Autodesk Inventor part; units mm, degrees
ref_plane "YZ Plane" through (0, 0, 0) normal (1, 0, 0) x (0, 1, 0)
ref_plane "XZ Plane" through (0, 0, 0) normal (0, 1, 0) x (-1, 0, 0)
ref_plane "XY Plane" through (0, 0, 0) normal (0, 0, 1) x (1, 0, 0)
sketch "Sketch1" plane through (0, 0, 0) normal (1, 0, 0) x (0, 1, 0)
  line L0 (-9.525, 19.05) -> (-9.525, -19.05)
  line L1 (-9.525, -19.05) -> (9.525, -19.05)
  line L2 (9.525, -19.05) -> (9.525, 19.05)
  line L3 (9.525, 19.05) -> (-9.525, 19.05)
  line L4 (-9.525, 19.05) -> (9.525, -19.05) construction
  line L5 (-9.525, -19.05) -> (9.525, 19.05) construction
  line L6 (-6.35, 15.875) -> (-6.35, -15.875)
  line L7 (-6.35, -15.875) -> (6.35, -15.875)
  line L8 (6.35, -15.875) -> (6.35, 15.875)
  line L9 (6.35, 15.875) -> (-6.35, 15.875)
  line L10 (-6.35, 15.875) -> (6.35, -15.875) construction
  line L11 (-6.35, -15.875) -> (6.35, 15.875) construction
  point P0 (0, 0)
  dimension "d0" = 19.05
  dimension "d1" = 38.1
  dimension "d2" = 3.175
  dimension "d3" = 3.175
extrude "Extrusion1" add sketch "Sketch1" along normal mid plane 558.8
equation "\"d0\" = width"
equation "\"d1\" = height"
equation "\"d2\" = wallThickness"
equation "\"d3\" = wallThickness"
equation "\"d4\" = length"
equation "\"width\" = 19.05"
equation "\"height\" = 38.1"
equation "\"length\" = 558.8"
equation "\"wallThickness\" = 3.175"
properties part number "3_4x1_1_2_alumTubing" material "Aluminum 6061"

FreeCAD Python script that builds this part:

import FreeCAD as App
import Part
import Sketcher

V = App.Vector
Q = App.Units.Quantity


def add_polygon(sketch, points):
    """Adds a closed chain of lines whose ends are joined by coincident constraints."""
    first, n = sketch.GeometryCount, len(points)
    for a, b in zip(points, points[1:] + points[:1]):
        sketch.addGeometry(Part.LineSegment(App.Vector(*a, 0), App.Vector(*b, 0)), False)
    for i in range(n):
        sketch.addConstraint(Sketcher.Constraint("Coincident", first + i, 2, first + (i + 1) % n, 1))

doc = App.newDocument("Part")
body = doc.addObject("PartDesign::Body", "Body")

# Sketch on YZ plane
sketch1 = body.newObject("Sketcher::SketchObject", "Sketch")
sketch1.AttachmentSupport = (doc.getObject("YZ_Plane"), [""])
sketch1.MapMode = "FlatFace"
add_polygon(sketch1, [(10, 19), (-10, 19), (-10, -19), (10, -19)])  # lines 0-3
add_polygon(sketch1, [(-6, -16), (-6, 16), (6, 16), (6, -16)])  # lines 4-7
sketch1.addConstraint(Sketcher.Constraint("Horizontal", 0))
sketch1.addConstraint(Sketcher.Constraint("Vertical", 1))
sketch1.addConstraint(Sketcher.Constraint("Horizontal", 2))
sketch1.addConstraint(Sketcher.Constraint("Vertical", 3))
sketch1.addConstraint(Sketcher.Constraint("Vertical", 4))
sketch1.addConstraint(Sketcher.Constraint("Horizontal", 5))
sketch1.addConstraint(Sketcher.Constraint("Vertical", 6))
sketch1.addConstraint(Sketcher.Constraint("Horizontal", 7))
sketch1.addConstraint(Sketcher.Constraint("Symmetric", 0, 2, 2, 2, -1, 1))
sketch1.addConstraint(Sketcher.Constraint("Symmetric", 4, 2, 6, 2, -1, 1))
sketch1.addConstraint(Sketcher.Constraint("DistanceY", 1, 2, 1, 1, Q("1.5 in")))
sketch1.addConstraint(Sketcher.Constraint("DistanceX", 0, 2, 0, 1, Q("0.75 in")))
sketch1.addConstraint(Sketcher.Constraint("DistanceX", 5, 1, 5, 2, Q("0.5 in")))
sketch1.addConstraint(Sketcher.Constraint("DistanceY", 4, 2, 0, 2, Q("0.125 in")))
pad1 = body.newObject("PartDesign::Pad", "Pad")
pad1.Profile = sketch1
pad1.Length = Q("22 in")
pad1.Midplane = True

doc.recompute()
